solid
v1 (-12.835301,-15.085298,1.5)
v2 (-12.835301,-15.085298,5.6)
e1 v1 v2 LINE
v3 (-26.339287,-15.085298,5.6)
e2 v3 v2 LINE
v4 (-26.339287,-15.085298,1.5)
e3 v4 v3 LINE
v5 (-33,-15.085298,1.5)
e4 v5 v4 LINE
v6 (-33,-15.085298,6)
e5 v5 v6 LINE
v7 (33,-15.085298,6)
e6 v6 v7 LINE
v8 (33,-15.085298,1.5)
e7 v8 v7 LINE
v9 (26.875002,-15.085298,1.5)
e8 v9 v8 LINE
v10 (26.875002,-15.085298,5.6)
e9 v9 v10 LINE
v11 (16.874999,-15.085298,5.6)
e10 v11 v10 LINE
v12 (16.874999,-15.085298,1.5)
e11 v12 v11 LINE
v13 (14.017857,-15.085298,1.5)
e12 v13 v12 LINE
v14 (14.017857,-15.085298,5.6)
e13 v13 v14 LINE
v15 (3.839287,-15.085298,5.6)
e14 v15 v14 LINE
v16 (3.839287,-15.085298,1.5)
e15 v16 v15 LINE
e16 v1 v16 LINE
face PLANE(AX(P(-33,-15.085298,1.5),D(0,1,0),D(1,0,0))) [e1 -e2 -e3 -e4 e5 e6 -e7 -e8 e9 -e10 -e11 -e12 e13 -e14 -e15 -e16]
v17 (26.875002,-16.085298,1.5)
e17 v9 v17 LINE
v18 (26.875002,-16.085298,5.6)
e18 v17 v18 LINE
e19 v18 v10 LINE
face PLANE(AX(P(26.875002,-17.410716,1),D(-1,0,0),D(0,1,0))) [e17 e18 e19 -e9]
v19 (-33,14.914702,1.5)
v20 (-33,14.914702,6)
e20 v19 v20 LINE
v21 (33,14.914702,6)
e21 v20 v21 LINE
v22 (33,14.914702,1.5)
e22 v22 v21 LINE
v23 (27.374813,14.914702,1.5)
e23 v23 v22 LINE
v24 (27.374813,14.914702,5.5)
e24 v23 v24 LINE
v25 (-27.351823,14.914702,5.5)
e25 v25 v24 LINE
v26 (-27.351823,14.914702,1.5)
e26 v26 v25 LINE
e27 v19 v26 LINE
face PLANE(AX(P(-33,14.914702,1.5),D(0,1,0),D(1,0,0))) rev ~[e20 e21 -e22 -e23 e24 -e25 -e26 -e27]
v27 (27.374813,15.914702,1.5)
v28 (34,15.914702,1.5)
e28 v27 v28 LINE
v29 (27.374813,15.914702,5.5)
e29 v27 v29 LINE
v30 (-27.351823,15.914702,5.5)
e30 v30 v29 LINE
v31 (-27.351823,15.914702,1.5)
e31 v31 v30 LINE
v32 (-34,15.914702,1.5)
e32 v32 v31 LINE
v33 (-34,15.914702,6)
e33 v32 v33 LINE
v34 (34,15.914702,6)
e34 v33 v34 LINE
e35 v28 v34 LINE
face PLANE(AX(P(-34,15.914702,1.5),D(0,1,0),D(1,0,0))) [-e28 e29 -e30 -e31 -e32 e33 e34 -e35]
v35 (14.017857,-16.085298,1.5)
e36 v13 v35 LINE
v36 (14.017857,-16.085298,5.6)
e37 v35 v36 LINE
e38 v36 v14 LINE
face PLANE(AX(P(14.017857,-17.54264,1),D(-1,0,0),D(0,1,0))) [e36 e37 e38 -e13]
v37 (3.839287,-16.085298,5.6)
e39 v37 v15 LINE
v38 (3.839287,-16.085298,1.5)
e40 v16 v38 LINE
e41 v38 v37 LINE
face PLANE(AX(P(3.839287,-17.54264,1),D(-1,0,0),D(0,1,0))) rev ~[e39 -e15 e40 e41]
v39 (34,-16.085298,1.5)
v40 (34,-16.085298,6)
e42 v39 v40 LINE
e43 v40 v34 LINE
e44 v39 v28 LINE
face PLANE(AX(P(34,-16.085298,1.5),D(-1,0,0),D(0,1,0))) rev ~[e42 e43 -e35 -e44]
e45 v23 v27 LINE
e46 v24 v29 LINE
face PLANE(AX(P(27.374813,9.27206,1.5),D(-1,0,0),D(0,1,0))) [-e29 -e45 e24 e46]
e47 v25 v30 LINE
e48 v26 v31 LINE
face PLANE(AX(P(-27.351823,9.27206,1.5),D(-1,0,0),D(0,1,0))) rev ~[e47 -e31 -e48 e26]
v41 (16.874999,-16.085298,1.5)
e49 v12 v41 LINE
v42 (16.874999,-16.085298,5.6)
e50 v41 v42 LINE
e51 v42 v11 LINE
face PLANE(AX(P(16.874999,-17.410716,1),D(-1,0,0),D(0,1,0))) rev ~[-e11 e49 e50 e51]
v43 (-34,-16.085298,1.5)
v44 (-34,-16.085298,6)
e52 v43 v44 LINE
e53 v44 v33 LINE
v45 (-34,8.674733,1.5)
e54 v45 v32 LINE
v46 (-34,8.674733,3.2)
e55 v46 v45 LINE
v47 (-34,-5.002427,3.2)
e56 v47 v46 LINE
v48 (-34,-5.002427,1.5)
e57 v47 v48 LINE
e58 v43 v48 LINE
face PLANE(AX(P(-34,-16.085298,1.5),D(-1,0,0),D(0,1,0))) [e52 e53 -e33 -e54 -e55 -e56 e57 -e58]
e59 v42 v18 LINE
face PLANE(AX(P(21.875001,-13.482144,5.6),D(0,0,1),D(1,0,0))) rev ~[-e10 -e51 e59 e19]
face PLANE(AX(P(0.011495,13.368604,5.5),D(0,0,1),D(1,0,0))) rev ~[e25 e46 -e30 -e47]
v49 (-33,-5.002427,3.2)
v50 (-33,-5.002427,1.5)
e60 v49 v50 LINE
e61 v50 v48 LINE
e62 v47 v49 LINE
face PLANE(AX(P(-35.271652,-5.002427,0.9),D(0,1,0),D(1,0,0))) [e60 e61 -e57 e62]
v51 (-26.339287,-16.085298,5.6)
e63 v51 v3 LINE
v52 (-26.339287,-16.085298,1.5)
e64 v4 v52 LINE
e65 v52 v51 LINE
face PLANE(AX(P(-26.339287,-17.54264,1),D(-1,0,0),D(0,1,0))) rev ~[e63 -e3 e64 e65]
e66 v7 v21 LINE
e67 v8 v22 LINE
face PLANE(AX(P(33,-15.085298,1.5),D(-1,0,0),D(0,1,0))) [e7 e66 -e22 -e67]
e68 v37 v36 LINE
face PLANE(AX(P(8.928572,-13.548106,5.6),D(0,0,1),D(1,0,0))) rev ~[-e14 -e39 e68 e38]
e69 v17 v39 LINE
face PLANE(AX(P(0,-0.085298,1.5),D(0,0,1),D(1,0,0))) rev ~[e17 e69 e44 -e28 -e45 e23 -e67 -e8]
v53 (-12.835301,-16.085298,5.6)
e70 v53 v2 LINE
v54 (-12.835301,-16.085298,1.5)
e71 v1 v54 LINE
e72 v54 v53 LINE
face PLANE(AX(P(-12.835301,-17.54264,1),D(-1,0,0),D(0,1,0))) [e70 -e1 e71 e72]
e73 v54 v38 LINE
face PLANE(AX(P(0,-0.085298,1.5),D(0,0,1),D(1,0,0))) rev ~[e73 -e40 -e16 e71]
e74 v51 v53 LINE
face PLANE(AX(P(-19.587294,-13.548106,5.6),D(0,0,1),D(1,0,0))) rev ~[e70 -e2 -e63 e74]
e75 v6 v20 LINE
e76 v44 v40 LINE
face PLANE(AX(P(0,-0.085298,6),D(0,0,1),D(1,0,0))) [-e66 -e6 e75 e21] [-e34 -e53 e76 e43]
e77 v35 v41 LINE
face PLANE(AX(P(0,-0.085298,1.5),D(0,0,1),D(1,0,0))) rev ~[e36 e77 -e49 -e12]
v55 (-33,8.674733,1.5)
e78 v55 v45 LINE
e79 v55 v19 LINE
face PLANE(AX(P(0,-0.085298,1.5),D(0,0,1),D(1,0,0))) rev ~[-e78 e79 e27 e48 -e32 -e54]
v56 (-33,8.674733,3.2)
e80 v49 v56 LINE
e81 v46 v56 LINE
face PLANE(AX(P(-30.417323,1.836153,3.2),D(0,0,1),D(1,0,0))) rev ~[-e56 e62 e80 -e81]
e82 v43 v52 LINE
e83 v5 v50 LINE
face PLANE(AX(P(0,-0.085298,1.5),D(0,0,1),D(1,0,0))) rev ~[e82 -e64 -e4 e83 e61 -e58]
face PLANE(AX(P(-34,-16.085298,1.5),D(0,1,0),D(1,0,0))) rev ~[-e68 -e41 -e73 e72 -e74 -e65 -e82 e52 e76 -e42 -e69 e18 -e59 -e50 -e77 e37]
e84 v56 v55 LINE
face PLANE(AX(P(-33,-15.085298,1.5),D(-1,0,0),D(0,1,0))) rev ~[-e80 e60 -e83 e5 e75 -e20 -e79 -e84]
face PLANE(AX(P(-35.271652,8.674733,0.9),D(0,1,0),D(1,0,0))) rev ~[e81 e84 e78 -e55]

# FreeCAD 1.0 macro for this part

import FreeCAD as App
import Part
import Sketcher

V = App.Vector
Q = App.Units.Quantity

doc = App.newDocument("Part")
body = doc.addObject("PartDesign::Body", "Body")

# Sketch on XY plane
sketch1 = doc.addObject("Sketcher::SketchObject", "Sketch")
body.addObject(sketch1)
sketch1.AttachmentSupport = (doc.XY_Plane, [""])
sketch1.MapMode = "FlatFace"
sketch1.AttachmentOffset = App.Placement(V(0, 0, 1.5), App.Rotation())
sketch1.addGeometry([
    Part.LineSegment(V(-34, 15.914702, 0), V(-34, -16.085298, 0)),  # 0
    Part.LineSegment(V(-34, -16.085298, 0), V(34, -16.085298, 0)),  # 1
    Part.LineSegment(V(34, -16.085298, 0), V(34, 15.914702, 0)),  # 2
    Part.LineSegment(V(34, 15.914702, 0), V(-34, 15.914702, 0)),  # 3
    Part.LineSegment(V(33, -15.085298, 0), V(-33, -15.085298, 0)),  # 4
    Part.LineSegment(V(-33, -15.085298, 0), V(-33, 14.914702, 0)),  # 5
    Part.LineSegment(V(-33, 14.914702, 0), V(33, 14.914702, 0)),  # 6
    Part.LineSegment(V(33, 14.914702, 0), V(33, -15.085298, 0)),  # 7
], False)
sketch1.addConstraint([
    Sketcher.Constraint("Coincident", 0, 2, 1, 1),
    Sketcher.Constraint("Coincident", 1, 2, 2, 1),
    Sketcher.Constraint("Coincident", 2, 2, 3, 1),
    Sketcher.Constraint("Coincident", 3, 2, 0, 1),
    Sketcher.Constraint("Coincident", 4, 2, 5, 1),
    Sketcher.Constraint("Coincident", 5, 2, 6, 1),
    Sketcher.Constraint("Coincident", 6, 2, 7, 1),
    Sketcher.Constraint("Coincident", 7, 2, 4, 1),
    Sketcher.Constraint("Vertical", 0),
    Sketcher.Constraint("Horizontal", 1),
    Sketcher.Constraint("Vertical", 2),
    Sketcher.Constraint("Horizontal", 3),
    Sketcher.Constraint("Horizontal", 4),
    Sketcher.Constraint("Vertical", 5),
    Sketcher.Constraint("Horizontal", 6),
    Sketcher.Constraint("Vertical", 7),
    Sketcher.Constraint("DistanceX", 1, 1, 1, 2, Q("68 mm")),
    Sketcher.Constraint("DistanceX", 4, 2, 4, 1, Q("66.000001 mm")),
    Sketcher.Constraint("DistanceY", 0, 2, 0, 1, Q("32 mm")),
    Sketcher.Constraint("DistanceY", 5, 1, 5, 2, Q("30 mm")),
    Sketcher.Constraint("DistanceX", 0, 2, -1, 1, Q("34 mm")),
    Sketcher.Constraint("DistanceX", 4, 2, -1, 1, Q("33 mm")),
    Sketcher.Constraint("DistanceY", 0, 2, 4, 2, Q("1 mm")),
    Sketcher.Constraint("DistanceY", 0, 2, -1, 1, Q("16.085298 mm")),
])
pad1 = doc.addObject("PartDesign::Pad", "Pad")
body.addObject(pad1)
pad1.Profile = sketch1
pad1.Length = 4.5

# Sketch on XY plane
sketch2 = doc.addObject("Sketcher::SketchObject", "Sketch001")
body.addObject(sketch2)
sketch2.AttachmentSupport = (doc.XY_Plane, [""])
sketch2.MapMode = "FlatFace"
sketch2.AttachmentOffset = App.Placement(V(0, 0, 0.9), App.Rotation())
sketch2.addGeometry([
    Part.LineSegment(V(-35.271652, 8.674733, 0), V(-35.271652, -5.002427, 0)),
    Part.LineSegment(V(-35.271652, -5.002427, 0), V(-25.562994, -5.002427, 0)),
    Part.LineSegment(V(-25.562994, -5.002427, 0), V(-25.562994, 8.674733, 0)),
    Part.LineSegment(V(-25.562994, 8.674733, 0), V(-35.271652, 8.674733, 0)),
], False)
sketch2.addConstraint([
    Sketcher.Constraint("Coincident", 0, 2, 1, 1),
    Sketcher.Constraint("Coincident", 1, 2, 2, 1),
    Sketcher.Constraint("Coincident", 2, 2, 3, 1),
    Sketcher.Constraint("Coincident", 3, 2, 0, 1),
    Sketcher.Constraint("Vertical", 0),
    Sketcher.Constraint("Horizontal", 1),
    Sketcher.Constraint("Vertical", 2),
    Sketcher.Constraint("Horizontal", 3),
    Sketcher.Constraint("DistanceY", 0, 2, 0, 1, Q("13.677161 mm")),
    Sketcher.Constraint("DistanceX", 1, 1, 1, 2, Q("9.708658 mm")),
    Sketcher.Constraint("DistanceX", 0, 2, -1, 1, Q("35.271652 mm")),
    Sketcher.Constraint("DistanceY", 0, 2, -1, 1, Q("5.002427 mm")),
])
pocket1 = doc.addObject("PartDesign::Pocket", "Pocket")
body.addObject(pocket1)
pocket1.Profile = sketch2
pocket1.Length = 2.3
pocket1.Reversed = True

# Sketch on XY plane
sketch3 = doc.addObject("Sketcher::SketchObject", "Sketch002")
body.addObject(sketch3)
sketch3.AttachmentSupport = (doc.XY_Plane, [""])
sketch3.MapMode = "FlatFace"
sketch3.AttachmentOffset = App.Placement(V(0, 0, 1), App.Rotation())
sketch3.addGeometry([
    Part.LineSegment(V(-26.339287, -9.553572, 0), V(-26.339287, -17.54264, 0)),  # 0
    Part.LineSegment(V(-26.339287, -17.54264, 0), V(-12.835301, -17.54264, 0)),  # 1
    Part.LineSegment(V(-12.835301, -17.54264, 0), V(-12.835301, -9.553572, 0)),  # 2
    Part.LineSegment(V(-12.835301, -9.553572, 0), V(-26.339287, -9.553572, 0)),  # 3
    Part.LineSegment(V(3.839287, -9.553572, 0), V(3.839287, -17.54264, 0)),  # 4
    Part.LineSegment(V(3.839287, -17.54264, 0), V(14.017857, -17.54264, 0)),  # 5
    Part.LineSegment(V(14.017857, -17.54264, 0), V(14.017857, -9.553572, 0)),  # 6
    Part.LineSegment(V(14.017857, -9.553572, 0), V(3.839287, -9.553572, 0)),  # 7
    Part.LineSegment(V(16.874999, -9.553572, 0), V(16.874999, -17.410716, 0)),  # 8
    Part.LineSegment(V(16.874999, -17.410716, 0), V(26.875002, -17.410716, 0)),  # 9
    Part.LineSegment(V(26.875002, -17.410716, 0), V(26.875002, -9.553572, 0)),  # 10
    Part.LineSegment(V(26.875002, -9.553572, 0), V(16.874999, -9.553572, 0)),  # 11
], False)
sketch3.addConstraint([
    Sketcher.Constraint("Coincident", 0, 2, 1, 1),
    Sketcher.Constraint("Coincident", 1, 2, 2, 1),
    Sketcher.Constraint("Coincident", 2, 2, 3, 1),
    Sketcher.Constraint("Coincident", 3, 2, 0, 1),
    Sketcher.Constraint("Coincident", 4, 2, 5, 1),
    Sketcher.Constraint("Coincident", 5, 2, 6, 1),
    Sketcher.Constraint("Coincident", 6, 2, 7, 1),
    Sketcher.Constraint("Coincident", 7, 2, 4, 1),
    Sketcher.Constraint("Coincident", 8, 2, 9, 1),
    Sketcher.Constraint("Coincident", 9, 2, 10, 1),
    Sketcher.Constraint("Coincident", 10, 2, 11, 1),
    Sketcher.Constraint("Coincident", 11, 2, 8, 1),
    Sketcher.Constraint("Vertical", 0),
    Sketcher.Constraint("Horizontal", 1),
    Sketcher.Constraint("Vertical", 2),
    Sketcher.Constraint("Horizontal", 3),
    Sketcher.Constraint("Vertical", 4),
    Sketcher.Constraint("Horizontal", 5),
    Sketcher.Constraint("Vertical", 6),
    Sketcher.Constraint("Horizontal", 7),
    Sketcher.Constraint("Vertical", 8),
    Sketcher.Constraint("Horizontal", 9),
    Sketcher.Constraint("Vertical", 10),
    Sketcher.Constraint("Horizontal", 11),
    Sketcher.Constraint("Horizontal", 1, 2, 4, 2),
    Sketcher.Constraint("Horizontal", 3, 2, 6, 2),
    Sketcher.Constraint("Horizontal", 7, 2, 10, 2),
    Sketcher.Constraint("DistanceX", -1, 1, 8, 2, Q("16.874999 mm")),
    Sketcher.Constraint("DistanceX", 5, 1, 5, 2, Q("10.17857 mm")),
    Sketcher.Constraint("DistanceX", 1, 2, -1, 1, Q("12.835301 mm")),
    Sketcher.Constraint("DistanceX", 1, 1, 1, 2, Q("13.503985 mm")),
    Sketcher.Constraint("DistanceX", 9, 1, 9, 2, Q("10.000004 mm")),
    Sketcher.Constraint("DistanceY", 0, 2, 0, 1, Q("7.989068 mm")),
    Sketcher.Constraint("DistanceY", 8, 2, 8, 1, Q("7.857144 mm")),
    Sketcher.Constraint("DistanceY", 0, 2, -1, 1, Q("17.54264 mm")),
    Sketcher.Constraint("DistanceX", 1, 2, 4, 2, Q("16.674588 mm")),
])
pocket2 = doc.addObject("PartDesign::Pocket", "Pocket001")
body.addObject(pocket2)
pocket2.Profile = sketch3
pocket2.Length = 4.6
pocket2.Reversed = True

# Sketch on XY plane
sketch4 = doc.addObject("Sketcher::SketchObject", "Sketch003")
body.addObject(sketch4)
sketch4.AttachmentSupport = (doc.XY_Plane, [""])
sketch4.MapMode = "FlatFace"
sketch4.AttachmentOffset = App.Placement(V(0, 0, 1.5), App.Rotation())
sketch4.addGeometry([
    Part.LineSegment(V(-27.351823, 17.465148, 0), V(-27.351823, 9.27206, 0)),
    Part.LineSegment(V(-27.351823, 9.27206, 0), V(27.374813, 9.27206, 0)),
    Part.LineSegment(V(27.374813, 9.27206, 0), V(27.374813, 17.465148, 0)),
    Part.LineSegment(V(27.374813, 17.465148, 0), V(-27.351823, 17.465148, 0)),
], False)
sketch4.addConstraint([
    Sketcher.Constraint("Coincident", 0, 2, 1, 1),
    Sketcher.Constraint("Coincident", 1, 2, 2, 1),
    Sketcher.Constraint("Coincident", 2, 2, 3, 1),
    Sketcher.Constraint("Coincident", 3, 2, 0, 1),
    Sketcher.Constraint("Vertical", 0),
    Sketcher.Constraint("Horizontal", 1),
    Sketcher.Constraint("Vertical", 2),
    Sketcher.Constraint("Horizontal", 3),
    Sketcher.Constraint("DistanceX", 1, 1, 1, 2, Q("54.726636 mm")),
    Sketcher.Constraint("DistanceY", 0, 2, 0, 1, Q("8.193088 mm")),
    Sketcher.Constraint("DistanceY", -1, 1, 0, 2, Q("9.27206 mm")),
    Sketcher.Constraint("DistanceX", 0, 2, -1, 1, Q("27.351823 mm")),
])
pocket3 = doc.addObject("PartDesign::Pocket", "Pocket002")
body.addObject(pocket3)
pocket3.Profile = sketch4
pocket3.Length = 4
pocket3.Reversed = True

doc.recompute()
